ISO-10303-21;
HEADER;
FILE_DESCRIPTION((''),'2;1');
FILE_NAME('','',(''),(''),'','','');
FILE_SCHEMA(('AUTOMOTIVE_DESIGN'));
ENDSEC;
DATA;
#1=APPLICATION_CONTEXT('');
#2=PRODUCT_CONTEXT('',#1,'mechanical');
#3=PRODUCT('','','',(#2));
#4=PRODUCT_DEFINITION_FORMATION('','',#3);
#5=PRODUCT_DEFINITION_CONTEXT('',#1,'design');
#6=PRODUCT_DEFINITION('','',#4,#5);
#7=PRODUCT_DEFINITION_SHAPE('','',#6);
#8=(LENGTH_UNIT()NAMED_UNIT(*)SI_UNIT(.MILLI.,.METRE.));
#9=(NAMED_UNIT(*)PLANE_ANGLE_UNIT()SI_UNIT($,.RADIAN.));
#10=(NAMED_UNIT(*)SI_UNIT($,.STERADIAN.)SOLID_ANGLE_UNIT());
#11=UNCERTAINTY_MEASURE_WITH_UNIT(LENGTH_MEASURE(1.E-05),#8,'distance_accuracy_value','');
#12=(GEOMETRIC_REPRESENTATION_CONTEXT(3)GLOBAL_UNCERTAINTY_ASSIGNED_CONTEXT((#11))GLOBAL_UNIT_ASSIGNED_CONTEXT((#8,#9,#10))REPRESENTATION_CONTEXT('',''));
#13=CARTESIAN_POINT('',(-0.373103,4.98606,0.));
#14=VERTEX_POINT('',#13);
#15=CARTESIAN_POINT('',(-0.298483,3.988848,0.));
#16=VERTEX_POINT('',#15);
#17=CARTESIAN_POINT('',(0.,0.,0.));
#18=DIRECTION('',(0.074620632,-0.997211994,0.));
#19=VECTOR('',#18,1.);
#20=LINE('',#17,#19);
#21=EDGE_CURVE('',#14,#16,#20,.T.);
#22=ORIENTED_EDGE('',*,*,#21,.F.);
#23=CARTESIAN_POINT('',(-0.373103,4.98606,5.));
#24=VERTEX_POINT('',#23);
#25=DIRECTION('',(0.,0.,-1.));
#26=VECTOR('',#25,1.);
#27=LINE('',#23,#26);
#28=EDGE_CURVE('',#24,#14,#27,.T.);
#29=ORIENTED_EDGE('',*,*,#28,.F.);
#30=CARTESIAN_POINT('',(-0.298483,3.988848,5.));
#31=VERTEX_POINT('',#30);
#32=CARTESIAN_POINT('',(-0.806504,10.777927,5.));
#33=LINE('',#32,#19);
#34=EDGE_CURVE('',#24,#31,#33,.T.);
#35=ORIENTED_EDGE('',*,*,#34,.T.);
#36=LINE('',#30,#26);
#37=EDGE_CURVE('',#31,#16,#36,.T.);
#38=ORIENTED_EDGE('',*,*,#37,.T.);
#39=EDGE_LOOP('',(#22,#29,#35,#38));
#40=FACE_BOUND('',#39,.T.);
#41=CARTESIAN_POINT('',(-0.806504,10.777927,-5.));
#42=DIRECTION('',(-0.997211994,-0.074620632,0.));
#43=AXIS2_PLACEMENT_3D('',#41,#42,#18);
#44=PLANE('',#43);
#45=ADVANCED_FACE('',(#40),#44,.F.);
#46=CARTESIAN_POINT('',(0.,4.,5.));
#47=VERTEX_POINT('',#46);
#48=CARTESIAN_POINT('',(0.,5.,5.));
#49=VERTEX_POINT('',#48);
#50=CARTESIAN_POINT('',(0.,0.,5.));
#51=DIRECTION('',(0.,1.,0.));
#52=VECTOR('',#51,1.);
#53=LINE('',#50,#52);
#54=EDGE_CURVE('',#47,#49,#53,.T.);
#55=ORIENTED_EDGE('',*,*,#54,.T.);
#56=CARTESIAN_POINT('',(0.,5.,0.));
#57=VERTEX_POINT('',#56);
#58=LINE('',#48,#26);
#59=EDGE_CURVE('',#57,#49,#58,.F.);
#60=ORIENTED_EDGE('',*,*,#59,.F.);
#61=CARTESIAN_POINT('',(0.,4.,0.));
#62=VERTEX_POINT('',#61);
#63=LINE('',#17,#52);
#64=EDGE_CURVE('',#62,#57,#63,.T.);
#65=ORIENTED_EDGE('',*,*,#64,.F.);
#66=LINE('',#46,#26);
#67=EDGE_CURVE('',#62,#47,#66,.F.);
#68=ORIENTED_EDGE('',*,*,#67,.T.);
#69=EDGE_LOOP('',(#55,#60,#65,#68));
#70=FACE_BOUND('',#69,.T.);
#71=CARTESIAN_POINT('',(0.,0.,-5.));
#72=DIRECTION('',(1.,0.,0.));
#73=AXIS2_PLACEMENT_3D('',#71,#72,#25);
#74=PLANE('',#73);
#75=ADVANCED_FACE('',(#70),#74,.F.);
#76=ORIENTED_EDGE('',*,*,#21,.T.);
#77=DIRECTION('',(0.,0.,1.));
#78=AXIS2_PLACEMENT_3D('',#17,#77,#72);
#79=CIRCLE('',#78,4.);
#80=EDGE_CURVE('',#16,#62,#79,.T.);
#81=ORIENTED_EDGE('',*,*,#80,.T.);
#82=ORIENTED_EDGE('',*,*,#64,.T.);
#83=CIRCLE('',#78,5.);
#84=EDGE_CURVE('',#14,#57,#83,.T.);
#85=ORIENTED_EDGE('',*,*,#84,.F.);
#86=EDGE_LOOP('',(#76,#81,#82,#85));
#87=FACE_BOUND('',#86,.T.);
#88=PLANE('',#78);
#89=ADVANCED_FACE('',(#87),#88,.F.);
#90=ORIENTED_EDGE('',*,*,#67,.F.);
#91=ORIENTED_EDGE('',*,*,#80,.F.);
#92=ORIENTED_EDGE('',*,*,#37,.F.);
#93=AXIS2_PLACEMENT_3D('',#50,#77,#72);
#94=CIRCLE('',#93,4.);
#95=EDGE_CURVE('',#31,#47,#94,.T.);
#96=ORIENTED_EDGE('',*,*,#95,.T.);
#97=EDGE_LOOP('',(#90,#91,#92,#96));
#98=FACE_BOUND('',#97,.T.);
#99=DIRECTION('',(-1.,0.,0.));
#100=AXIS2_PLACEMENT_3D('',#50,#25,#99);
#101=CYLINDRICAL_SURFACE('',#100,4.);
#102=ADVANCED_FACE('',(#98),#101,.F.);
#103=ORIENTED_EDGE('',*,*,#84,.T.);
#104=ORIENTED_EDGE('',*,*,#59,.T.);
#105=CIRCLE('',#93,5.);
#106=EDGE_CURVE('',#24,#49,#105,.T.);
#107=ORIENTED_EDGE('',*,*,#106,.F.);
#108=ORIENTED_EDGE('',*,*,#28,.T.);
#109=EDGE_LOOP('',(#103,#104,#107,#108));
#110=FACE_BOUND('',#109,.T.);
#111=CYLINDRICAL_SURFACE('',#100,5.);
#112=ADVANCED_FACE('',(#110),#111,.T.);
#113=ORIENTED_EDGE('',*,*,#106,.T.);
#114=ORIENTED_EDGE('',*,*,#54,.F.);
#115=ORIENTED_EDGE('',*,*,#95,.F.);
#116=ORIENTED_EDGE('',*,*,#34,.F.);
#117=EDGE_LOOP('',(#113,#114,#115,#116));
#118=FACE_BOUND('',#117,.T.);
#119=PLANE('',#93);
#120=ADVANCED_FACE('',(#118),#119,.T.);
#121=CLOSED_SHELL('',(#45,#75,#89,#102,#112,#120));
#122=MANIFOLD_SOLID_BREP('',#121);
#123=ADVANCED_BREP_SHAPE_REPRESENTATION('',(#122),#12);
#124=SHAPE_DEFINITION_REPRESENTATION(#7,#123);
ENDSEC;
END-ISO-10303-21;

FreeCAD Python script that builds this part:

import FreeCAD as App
import Part
import Sketcher

V = App.Vector
Q = App.Units.Quantity

doc = App.newDocument("Part")
body = doc.addObject("PartDesign::Body", "Body")

# Sketch on XY plane
sketch1 = body.newObject("Sketcher::SketchObject", "Sketch")
sketch1.AttachmentSupport = (doc.getObject("XY_Plane"), [""])
sketch1.MapMode = "FlatFace"
sketch1.addGeometry(Part.Circle(V(0, 0, 0), V(0, 0, 1), 5), False)
sketch1.addGeometry(Part.Circle(V(0, 0, 0), V(0, 0, 1), 4), False)
sketch1.addConstraint(Sketcher.Constraint("Coincident", 0, 3, -1, 1))
sketch1.addConstraint(Sketcher.Constraint("Coincident", 1, 3, -1, 1))
sketch1.addConstraint(Sketcher.Constraint("Diameter", 0, Q("10 mm")))
sketch1.addConstraint(Sketcher.Constraint("Diameter", 1, Q("8 mm")))
pad1 = body.newObject("PartDesign::Pad", "Pad")
pad1.Profile = sketch1
pad1.Length = 5

# Sketch on XY plane
sketch2 = body.newObject("Sketcher::SketchObject", "Sketch001")
sketch2.AttachmentSupport = (doc.getObject("XY_Plane"), [""])
sketch2.MapMode = "FlatFace"
sketch2.AttachmentOffset = App.Placement(V(0, 0, 5), App.Rotation())
sketch2.addGeometry(Part.LineSegment(V(0, 0, 0), V(0, 10.8, 0)), False)
sketch2.addGeometry(Part.LineSegment(V(0, 10.8, 0), V(-0.8, 10.8, 0)), False)
sketch2.addGeometry(Part.LineSegment(V(-0.8, 10.8, 0), V(0, 0, 0)), False)
sketch2.addConstraint(Sketcher.Constraint("Coincident", 0, 2, 1, 1))
sketch2.addConstraint(Sketcher.Constraint("Coincident", 1, 2, 2, 1))
sketch2.addConstraint(Sketcher.Constraint("Coincident", 2, 2, 0, 1))
sketch2.addConstraint(Sketcher.Constraint("Vertical", 0))
sketch2.addConstraint(Sketcher.Constraint("Horizontal", 1))
sketch2.addConstraint(Sketcher.Constraint("Coincident", 2, 2, -1, 1))
sketch2.addConstraint(Sketcher.Constraint("Distance", 2, Q("10.80806 mm")))
sketch2.addConstraint(Sketcher.Constraint("DistanceX", 1, 2, 1, 1, Q("0.806504 mm")))
pocket1 = body.newObject("PartDesign::Pocket", "Pocket")
pocket1.Profile = sketch2
pocket1.Length = 10

doc.recompute()
